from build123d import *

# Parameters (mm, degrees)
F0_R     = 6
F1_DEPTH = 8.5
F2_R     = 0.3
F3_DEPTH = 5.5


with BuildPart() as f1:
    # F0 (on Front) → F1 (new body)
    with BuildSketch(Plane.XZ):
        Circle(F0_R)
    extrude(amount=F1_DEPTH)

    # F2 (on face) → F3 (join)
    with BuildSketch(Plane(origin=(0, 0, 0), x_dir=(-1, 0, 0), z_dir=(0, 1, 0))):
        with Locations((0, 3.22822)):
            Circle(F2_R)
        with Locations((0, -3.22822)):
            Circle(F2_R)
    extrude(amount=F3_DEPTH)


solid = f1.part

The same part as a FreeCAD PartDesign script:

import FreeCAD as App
import Part
import Sketcher
Q = App.Units.Quantity

doc = App.newDocument("Part")
body = doc.addObject("PartDesign::Body", "Body")

sketch1 = body.newObject("Sketcher::SketchObject", "Sketch")
sketch1.AttachmentSupport = (doc.getObject("XZ_Plane"), [""])
sketch1.MapMode = "FlatFace"
sketch1.addGeometry(Part.Circle(App.Vector(0, 0, 0), App.Vector(0, 0, 1), 6), False)
sketch1.addConstraint([
    Sketcher.Constraint("Coincident", 0, 3, -1, 1),
    Sketcher.Constraint("Diameter", 0, Q("12 mm")),
])
pad1 = body.newObject("PartDesign::Pad", "Pad")
pad1.Profile = sketch1
pad1.Length = 8.5

sketch2 = body.newObject("Sketcher::SketchObject", "Sketch001")
sketch2.AttachmentSupport = (doc.getObject("XZ_Plane"), [""])
sketch2.MapMode = "FlatFace"
sketch2.addGeometry([
    Part.Circle(App.Vector(0, 3.23, 0), App.Vector(0, 0, 1), 0.3),
    Part.Circle(App.Vector(0, -3.23, 0), App.Vector(0, 0, 1), 0.3),
], False)
sketch2.addConstraint([
    Sketcher.Constraint("Equal", 0, 1),
    Sketcher.Constraint("Symmetric", 0, 3, 1, 3, -1, 1),
    Sketcher.Constraint("PointOnObject", 0, 3, -2),
    Sketcher.Constraint("Diameter", 0, Q("0.6 mm")),
    Sketcher.Constraint("DistanceY", -1, 1, 0, 3, Q("3.22822 mm")),
])
pad2 = body.newObject("PartDesign::Pad", "Pad001")
pad2.Profile = sketch2
pad2.Length = 5.5
pad2.Reversed = True

doc.recompute()
